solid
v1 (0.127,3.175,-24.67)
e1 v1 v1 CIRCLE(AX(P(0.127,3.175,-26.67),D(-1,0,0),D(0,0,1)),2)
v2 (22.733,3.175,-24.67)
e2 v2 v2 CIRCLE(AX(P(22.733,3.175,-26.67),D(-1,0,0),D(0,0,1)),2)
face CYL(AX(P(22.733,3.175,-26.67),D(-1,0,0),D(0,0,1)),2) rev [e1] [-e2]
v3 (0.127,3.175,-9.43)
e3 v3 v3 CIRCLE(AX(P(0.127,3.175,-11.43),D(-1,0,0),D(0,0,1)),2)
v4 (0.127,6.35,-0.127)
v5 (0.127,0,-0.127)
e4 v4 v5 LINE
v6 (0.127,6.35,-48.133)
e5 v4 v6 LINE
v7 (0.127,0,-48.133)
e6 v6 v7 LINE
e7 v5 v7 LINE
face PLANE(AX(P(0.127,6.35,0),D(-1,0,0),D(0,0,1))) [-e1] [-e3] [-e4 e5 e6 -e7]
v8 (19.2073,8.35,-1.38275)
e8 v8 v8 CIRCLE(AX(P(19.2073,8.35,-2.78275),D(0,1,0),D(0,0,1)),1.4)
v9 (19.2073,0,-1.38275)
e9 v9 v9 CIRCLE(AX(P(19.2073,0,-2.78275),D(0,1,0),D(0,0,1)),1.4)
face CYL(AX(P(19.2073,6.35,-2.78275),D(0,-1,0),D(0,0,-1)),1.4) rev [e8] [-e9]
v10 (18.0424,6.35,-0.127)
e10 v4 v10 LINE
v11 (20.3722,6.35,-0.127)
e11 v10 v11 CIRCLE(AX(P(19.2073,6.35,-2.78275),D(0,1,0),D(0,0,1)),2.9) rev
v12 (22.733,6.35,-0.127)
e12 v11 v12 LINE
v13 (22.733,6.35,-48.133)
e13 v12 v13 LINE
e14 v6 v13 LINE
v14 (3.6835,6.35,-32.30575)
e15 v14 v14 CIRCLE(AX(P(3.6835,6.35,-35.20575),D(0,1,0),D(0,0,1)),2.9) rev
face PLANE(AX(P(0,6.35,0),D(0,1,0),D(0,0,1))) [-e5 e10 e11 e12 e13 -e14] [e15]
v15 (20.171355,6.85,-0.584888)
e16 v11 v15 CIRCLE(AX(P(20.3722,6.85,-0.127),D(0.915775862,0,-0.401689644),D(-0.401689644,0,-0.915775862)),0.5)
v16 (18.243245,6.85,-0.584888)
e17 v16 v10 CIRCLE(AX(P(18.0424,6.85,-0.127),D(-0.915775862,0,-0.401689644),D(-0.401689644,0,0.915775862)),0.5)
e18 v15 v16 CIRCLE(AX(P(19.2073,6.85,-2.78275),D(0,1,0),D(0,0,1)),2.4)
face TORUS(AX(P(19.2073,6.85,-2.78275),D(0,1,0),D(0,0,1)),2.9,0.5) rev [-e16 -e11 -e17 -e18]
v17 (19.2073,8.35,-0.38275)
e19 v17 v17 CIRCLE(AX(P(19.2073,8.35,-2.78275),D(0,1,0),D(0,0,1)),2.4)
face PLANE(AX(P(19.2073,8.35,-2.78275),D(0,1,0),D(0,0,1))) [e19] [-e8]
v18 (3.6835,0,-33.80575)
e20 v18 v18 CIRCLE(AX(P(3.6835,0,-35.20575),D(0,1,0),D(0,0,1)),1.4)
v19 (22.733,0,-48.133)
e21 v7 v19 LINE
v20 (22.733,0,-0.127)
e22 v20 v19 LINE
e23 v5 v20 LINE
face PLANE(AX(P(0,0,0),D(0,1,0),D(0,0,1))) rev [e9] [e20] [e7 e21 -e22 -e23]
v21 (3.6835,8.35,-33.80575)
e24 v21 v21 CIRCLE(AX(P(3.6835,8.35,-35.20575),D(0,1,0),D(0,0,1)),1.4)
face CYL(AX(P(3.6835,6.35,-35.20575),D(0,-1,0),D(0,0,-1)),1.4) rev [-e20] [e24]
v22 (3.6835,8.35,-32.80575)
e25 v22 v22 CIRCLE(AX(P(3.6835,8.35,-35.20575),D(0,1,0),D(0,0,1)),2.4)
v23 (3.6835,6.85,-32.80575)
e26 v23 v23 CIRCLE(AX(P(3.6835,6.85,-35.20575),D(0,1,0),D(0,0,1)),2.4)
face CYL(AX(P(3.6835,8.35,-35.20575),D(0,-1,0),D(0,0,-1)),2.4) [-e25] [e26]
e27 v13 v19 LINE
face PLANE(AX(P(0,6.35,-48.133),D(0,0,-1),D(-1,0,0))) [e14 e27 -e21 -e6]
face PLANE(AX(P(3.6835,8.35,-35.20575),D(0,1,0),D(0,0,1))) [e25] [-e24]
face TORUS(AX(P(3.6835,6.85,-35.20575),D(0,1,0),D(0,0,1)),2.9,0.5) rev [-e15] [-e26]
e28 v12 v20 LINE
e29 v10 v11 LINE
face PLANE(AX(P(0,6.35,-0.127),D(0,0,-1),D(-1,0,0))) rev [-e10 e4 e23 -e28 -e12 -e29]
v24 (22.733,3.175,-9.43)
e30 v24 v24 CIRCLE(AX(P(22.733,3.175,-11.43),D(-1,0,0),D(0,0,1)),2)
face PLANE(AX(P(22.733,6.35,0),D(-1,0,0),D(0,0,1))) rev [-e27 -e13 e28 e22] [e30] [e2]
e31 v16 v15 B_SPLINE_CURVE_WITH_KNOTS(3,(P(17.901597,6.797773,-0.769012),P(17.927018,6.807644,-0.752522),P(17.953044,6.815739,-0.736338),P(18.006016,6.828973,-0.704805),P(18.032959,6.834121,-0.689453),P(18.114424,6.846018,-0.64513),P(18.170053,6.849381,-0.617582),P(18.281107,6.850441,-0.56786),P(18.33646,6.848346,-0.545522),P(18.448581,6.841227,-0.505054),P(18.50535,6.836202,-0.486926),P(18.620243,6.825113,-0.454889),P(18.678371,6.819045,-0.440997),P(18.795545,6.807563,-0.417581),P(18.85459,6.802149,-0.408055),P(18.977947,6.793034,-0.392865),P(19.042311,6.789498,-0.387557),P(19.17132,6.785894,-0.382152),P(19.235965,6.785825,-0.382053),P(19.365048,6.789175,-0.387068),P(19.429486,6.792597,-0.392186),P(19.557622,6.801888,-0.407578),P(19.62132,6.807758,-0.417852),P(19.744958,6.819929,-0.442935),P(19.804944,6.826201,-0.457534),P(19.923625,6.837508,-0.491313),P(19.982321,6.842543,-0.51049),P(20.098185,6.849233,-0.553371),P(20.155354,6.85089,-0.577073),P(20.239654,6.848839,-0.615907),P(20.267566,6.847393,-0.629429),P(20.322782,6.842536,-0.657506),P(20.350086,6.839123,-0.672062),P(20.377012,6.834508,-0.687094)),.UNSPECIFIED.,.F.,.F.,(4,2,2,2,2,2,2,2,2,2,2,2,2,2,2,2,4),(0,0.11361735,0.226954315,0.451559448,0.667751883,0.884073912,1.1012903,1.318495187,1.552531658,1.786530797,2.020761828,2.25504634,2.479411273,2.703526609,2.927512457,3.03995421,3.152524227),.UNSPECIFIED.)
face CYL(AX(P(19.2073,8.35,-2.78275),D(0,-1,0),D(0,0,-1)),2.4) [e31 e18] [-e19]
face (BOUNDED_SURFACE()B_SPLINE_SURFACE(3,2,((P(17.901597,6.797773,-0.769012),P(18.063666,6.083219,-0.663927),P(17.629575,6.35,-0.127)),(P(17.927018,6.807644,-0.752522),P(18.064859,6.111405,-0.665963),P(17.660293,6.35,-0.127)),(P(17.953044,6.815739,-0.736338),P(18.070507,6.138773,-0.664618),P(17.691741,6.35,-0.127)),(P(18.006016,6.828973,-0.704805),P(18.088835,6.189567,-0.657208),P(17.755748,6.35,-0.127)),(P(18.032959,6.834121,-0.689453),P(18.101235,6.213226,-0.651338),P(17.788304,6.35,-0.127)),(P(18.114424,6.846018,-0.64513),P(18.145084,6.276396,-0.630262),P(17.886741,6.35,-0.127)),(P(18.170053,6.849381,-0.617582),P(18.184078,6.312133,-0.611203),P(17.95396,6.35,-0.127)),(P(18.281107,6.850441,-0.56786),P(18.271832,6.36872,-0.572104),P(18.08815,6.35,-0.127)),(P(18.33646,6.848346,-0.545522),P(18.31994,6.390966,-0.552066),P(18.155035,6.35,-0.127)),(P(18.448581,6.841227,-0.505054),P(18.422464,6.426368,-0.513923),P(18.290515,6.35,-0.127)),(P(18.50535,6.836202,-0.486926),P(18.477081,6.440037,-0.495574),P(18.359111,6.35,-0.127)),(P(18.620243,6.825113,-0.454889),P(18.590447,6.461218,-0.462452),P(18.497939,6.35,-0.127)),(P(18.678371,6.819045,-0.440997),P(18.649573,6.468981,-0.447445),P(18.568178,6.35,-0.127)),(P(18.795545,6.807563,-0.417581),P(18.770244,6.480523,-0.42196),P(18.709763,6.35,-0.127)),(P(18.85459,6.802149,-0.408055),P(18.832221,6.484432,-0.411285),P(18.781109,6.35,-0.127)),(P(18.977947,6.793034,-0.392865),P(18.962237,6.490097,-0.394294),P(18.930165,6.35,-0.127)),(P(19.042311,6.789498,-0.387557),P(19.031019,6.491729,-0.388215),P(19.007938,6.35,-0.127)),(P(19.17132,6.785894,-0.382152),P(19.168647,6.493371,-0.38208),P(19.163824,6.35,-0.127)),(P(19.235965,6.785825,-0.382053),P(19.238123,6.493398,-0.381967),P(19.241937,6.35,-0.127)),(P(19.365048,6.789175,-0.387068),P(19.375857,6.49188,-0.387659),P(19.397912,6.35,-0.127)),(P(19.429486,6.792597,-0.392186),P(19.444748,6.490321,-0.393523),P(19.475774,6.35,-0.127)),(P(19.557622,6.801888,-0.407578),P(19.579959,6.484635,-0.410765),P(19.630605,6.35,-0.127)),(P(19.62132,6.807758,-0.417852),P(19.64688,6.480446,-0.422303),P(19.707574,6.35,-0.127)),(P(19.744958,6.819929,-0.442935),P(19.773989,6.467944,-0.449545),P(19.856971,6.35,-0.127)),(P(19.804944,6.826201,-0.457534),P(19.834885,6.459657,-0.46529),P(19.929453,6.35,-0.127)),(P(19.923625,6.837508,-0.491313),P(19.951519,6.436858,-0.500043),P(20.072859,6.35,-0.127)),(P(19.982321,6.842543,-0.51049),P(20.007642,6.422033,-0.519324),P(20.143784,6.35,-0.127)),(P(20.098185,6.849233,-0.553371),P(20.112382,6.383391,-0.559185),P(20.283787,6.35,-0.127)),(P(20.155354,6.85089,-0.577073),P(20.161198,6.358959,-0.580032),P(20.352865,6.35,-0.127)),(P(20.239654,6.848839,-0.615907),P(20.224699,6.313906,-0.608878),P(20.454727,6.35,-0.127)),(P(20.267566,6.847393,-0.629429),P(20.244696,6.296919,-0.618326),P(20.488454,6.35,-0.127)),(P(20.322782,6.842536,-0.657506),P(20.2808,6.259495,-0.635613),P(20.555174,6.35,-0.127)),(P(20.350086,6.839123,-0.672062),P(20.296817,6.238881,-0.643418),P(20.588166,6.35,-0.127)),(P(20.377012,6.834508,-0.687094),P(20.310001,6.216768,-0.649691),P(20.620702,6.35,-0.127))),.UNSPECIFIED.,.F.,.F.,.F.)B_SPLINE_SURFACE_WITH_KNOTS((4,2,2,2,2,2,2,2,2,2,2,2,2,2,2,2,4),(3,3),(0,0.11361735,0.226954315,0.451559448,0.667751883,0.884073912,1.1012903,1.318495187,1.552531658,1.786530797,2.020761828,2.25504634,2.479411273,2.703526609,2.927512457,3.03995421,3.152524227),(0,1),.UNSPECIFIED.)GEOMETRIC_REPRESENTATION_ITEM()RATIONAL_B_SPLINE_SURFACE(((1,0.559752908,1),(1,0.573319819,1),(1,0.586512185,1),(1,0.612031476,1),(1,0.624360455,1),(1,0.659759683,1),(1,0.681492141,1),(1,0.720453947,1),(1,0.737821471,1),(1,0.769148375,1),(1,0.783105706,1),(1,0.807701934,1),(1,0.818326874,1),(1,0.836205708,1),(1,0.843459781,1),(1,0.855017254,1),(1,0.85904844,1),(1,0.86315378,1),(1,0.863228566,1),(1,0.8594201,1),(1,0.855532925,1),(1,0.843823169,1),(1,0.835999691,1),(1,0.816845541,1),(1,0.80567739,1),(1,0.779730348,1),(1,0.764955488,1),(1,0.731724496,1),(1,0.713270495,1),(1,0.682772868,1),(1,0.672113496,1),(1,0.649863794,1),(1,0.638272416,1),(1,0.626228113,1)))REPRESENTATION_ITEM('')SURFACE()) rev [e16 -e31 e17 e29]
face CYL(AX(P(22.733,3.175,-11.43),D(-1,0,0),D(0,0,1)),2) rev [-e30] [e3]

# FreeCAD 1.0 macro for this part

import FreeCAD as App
import Part
import Sketcher
from FreeCAD import Vector
Q = App.Units.Quantity


def edges_at(feature, points):
    """Names of the edges that pass closest to the given points."""
    edges = feature.Shape.Edges
    near = lambda p: min(range(len(edges)), key=lambda i: edges[i].distToShape(Part.Vertex(*p))[0])
    return sorted({f"Edge{near(p) + 1}" for p in points})


def add_polygon(sketch, points):
    """Adds a closed chain of lines whose ends are joined by coincident constraints."""
    first, n = sketch.GeometryCount, len(points)
    for a, b in zip(points, points[1:] + points[:1]):
        sketch.addGeometry(Part.LineSegment(App.Vector(*a, 0), App.Vector(*b, 0)), False)
    for i in range(n):
        sketch.addConstraint(Sketcher.Constraint("Coincident", first + i, 2, first + (i + 1) % n, 1))

doc = App.newDocument("Part")
body = doc.addObject("PartDesign::Body", "Body")

sketch1 = doc.addObject("Sketcher::SketchObject", "Sketch")
body.addObject(sketch1)
sketch1.AttachmentSupport = (doc.XZ_Plane, [""])
sketch1.MapMode = "FlatFace"
add_polygon(sketch1, [(0.127, -48.133), (0.127, -0.127), (22.733, -0.127), (22.733, -48.133)])
sketch1.addGeometry(Part.Circle(Vector(19.2073, -2.78275, 0), Vector(0, 0, 1), 1.4), False)
sketch1.addGeometry(Part.Circle(Vector(3.6835, -35.20575, 0), Vector(0, 0, 1), 1.4), False)
sketch1.addConstraint(Sketcher.Constraint("Vertical", 0))
sketch1.addConstraint(Sketcher.Constraint("Horizontal", 1))
sketch1.addConstraint(Sketcher.Constraint("Vertical", 2))
sketch1.addConstraint(Sketcher.Constraint("Horizontal", 3))
sketch1.addConstraint(Sketcher.Constraint("Equal", 4, 5))
sketch1.addConstraint(Sketcher.Constraint("Diameter", 4, Q("2.8 mm")))
sketch1.addConstraint(Sketcher.Constraint("DistanceX", 1, 1, 1, 2, Q("22.606 mm")))
sketch1.addConstraint(Sketcher.Constraint("DistanceY", 0, 1, 0, 2, Q("48.006 mm")))
sketch1.addConstraint(Sketcher.Constraint("DistanceX", -1, 1, 0, 2, Q("0.127 mm")))
sketch1.addConstraint(Sketcher.Constraint("DistanceY", 0, 2, -1, 1, Q("0.127 mm")))
sketch1.addConstraint(Sketcher.Constraint("DistanceY", 5, 3, 4, 3, Q("32.423 mm")))
sketch1.addConstraint(Sketcher.Constraint("DistanceX", -1, 1, 4, 3, Q("19.2073 mm")))
sketch1.addConstraint(Sketcher.Constraint("DistanceX", -1, 1, 5, 3, Q("3.6835 mm")))
sketch1.addConstraint(Sketcher.Constraint("DistanceY", 4, 3, -1, 1, Q("2.78275 mm")))
pad1 = doc.addObject("PartDesign::Pad", "Pad")
body.addObject(pad1)
pad1.Profile = sketch1
pad1.Length = 6.35
pad1.Reversed = True

sketch2 = doc.addObject("Sketcher::SketchObject", "Sketch001")
body.addObject(sketch2)
sketch2.AttachmentSupport = (doc.YZ_Plane, [""])
sketch2.MapMode = "FlatFace"
sketch2.AttachmentOffset = App.Placement(Vector(0, 0, 0.127), App.Rotation())
sketch2.addGeometry(Part.Circle(Vector(3.175, -26.67, 0), Vector(0, 0, 1), 2), False)
sketch2.addGeometry(Part.Circle(Vector(3.175, -11.43, 0), Vector(0, 0, 1), 2), False)
sketch2.addConstraint(Sketcher.Constraint("Equal", 0, 1))
sketch2.addConstraint(Sketcher.Constraint("Vertical", 0, 3, 1, 3))
sketch2.addConstraint(Sketcher.Constraint("Diameter", 0, Q("4 mm")))
sketch2.addConstraint(Sketcher.Constraint("DistanceY", 0, 3, -1, 1, Q("26.67 mm")))
sketch2.addConstraint(Sketcher.Constraint("DistanceY", 1, 3, -1, 1, Q("11.43 mm")))
sketch2.addConstraint(Sketcher.Constraint("DistanceX", -1, 1, 0, 3, Q("3.175 mm")))
pocket1 = doc.addObject("PartDesign::Pocket", "Pocket")
body.addObject(pocket1)
pocket1.Profile = sketch2
pocket1.Type = "ThroughAll"
pocket1.Reversed = True

sketch3 = doc.addObject("Sketcher::SketchObject", "Sketch002")
body.addObject(sketch3)
sketch3.AttachmentSupport = (doc.XZ_Plane, [""])
sketch3.MapMode = "FlatFace"
sketch3.AttachmentOffset = App.Placement(Vector(0, 0, -6.35), App.Rotation())
sketch3.addGeometry(Part.Circle(Vector(3.6835, -35.20575, 0), Vector(0, 0, 1), 2.4), False)
sketch3.addGeometry(Part.Circle(Vector(3.6835, -35.20575, 0), Vector(0, 0, 1), 1.4), False)
sketch3.addGeometry(Part.Circle(Vector(19.2073, -2.78275, 0), Vector(0, 0, 1), 2.4), False)
sketch3.addGeometry(Part.Circle(Vector(19.2073, -2.78275, 0), Vector(0, 0, 1), 1.4), False)
sketch3.addConstraint(Sketcher.Constraint("Coincident", 1, 3, 0, 3))
sketch3.addConstraint(Sketcher.Constraint("Coincident", 3, 3, 2, 3))
sketch3.addConstraint(Sketcher.Constraint("Equal", 0, 2))
sketch3.addConstraint(Sketcher.Constraint("Equal", 1, 3))
sketch3.addConstraint(Sketcher.Constraint("Diameter", 0, Q("4.8 mm")))
sketch3.addConstraint(Sketcher.Constraint("Diameter", 1, Q("2.8 mm")))
sketch3.addConstraint(Sketcher.Constraint("DistanceY", 0, 3, 2, 3, Q("32.423 mm")))
sketch3.addConstraint(Sketcher.Constraint("DistanceX", -1, 1, 0, 3, Q("3.6835 mm")))
sketch3.addConstraint(Sketcher.Constraint("DistanceX", -1, 1, 2, 3, Q("19.2073 mm")))
sketch3.addConstraint(Sketcher.Constraint("DistanceY", 0, 3, -1, 1, Q("35.20575 mm")))
pad2 = doc.addObject("PartDesign::Pad", "Pad001")
body.addObject(pad2)
pad2.Profile = sketch3
pad2.Length = 2
pad2.Reversed = True
doc.recompute()

fillet = doc.addObject("PartDesign::Fillet", "Fillet")
body.addObject(fillet)
fillet.Base = (pad2, edges_at(pad2, [(1.284, 6.35, -35.206), (16.807, 6.35, -2.783)]))
fillet.Radius = 0.5

doc.recompute()
